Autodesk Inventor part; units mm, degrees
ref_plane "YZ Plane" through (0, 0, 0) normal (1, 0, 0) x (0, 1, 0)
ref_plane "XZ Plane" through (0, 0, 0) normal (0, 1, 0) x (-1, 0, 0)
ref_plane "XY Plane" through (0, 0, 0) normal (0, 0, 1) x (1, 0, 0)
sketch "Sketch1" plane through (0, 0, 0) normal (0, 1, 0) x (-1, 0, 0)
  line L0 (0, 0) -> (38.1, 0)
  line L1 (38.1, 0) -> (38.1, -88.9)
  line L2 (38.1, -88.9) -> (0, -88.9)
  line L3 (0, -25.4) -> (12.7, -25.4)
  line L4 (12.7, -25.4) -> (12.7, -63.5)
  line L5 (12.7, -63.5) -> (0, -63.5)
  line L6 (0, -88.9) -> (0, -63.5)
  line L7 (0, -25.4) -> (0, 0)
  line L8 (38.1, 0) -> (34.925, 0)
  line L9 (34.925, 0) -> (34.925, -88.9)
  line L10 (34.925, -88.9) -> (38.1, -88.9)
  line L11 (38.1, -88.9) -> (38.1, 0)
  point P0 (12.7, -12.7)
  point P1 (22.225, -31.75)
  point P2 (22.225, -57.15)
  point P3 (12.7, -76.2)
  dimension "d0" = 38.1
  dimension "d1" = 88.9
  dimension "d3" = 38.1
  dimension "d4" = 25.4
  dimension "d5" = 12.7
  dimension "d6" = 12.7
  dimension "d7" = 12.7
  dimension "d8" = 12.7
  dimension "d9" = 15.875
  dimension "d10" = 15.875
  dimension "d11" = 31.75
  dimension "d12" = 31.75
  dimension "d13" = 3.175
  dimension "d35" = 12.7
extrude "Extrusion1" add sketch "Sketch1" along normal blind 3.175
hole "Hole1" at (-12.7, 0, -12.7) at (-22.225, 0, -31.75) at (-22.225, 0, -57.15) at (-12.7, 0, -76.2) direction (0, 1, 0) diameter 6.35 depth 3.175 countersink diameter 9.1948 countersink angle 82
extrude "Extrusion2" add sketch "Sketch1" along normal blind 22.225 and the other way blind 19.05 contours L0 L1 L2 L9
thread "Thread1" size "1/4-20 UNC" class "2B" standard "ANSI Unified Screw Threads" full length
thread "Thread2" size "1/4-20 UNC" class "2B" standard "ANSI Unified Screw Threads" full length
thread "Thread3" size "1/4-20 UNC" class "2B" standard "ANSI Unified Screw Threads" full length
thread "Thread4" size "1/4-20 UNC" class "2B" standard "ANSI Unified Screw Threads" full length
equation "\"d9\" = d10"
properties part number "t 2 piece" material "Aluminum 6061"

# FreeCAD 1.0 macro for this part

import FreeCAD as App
import Part
import Sketcher

V = App.Vector
Q = App.Units.Quantity


def add_polygon(sketch, points):
    """Adds a closed chain of lines whose ends are joined by coincident constraints."""
    first, n = sketch.GeometryCount, len(points)
    for a, b in zip(points, points[1:] + points[:1]):
        sketch.addGeometry(Part.LineSegment(App.Vector(*a, 0), App.Vector(*b, 0)), False)
    for i in range(n):
        sketch.addConstraint(Sketcher.Constraint("Coincident", first + i, 2, first + (i + 1) % n, 1))

doc = App.newDocument("Part")
body = doc.addObject("PartDesign::Body", "Body")

# Sketch on XZ plane
sketch1 = doc.addObject("Sketcher::SketchObject", "Sketch")
body.addObject(sketch1)
sketch1.AttachmentSupport = (doc.XZ_Plane, [""])
sketch1.MapMode = "FlatFace"
add_polygon(sketch1, [(0, 0), (0, -25), (-13, -25), (-13, -64), (0, -64), (0, -89), (-38, -89), (-38, 0)])  # lines 0-7
sketch1.addConstraint([
    Sketcher.Constraint("Vertical", 0),
    Sketcher.Constraint("Horizontal", 1),
    Sketcher.Constraint("Vertical", 2),
    Sketcher.Constraint("Horizontal", 3),
    Sketcher.Constraint("Vertical", 4),
    Sketcher.Constraint("Horizontal", 5),
    Sketcher.Constraint("Vertical", 6),
    Sketcher.Constraint("Horizontal", 7),
    Sketcher.Constraint("Coincident", 7, 2, -1, 1),
    Sketcher.Constraint("PointOnObject", 3, 2, -2),
    Sketcher.Constraint("Equal", 7, 2),
    Sketcher.Constraint("Equal", 0, 4),
    Sketcher.Constraint("DistanceY", 0, 2, 0, 1, Q("1 in")),
    Sketcher.Constraint("DistanceX", 1, 2, 1, 1, Q("0.5 in")),
    Sketcher.Constraint("DistanceX", 5, 2, 5, 1, Q("1.5 in")),
])
pad1 = doc.addObject("PartDesign::Pad", "Pad")
body.addObject(pad1)
pad1.Profile = sketch1
pad1.Length = Q("0.125 in")
pad1.Reversed = True

# Sketch on XZ plane
sketch2 = doc.addObject("Sketcher::SketchObject", "Sketch001")
body.addObject(sketch2)
sketch2.AttachmentSupport = (doc.XZ_Plane, [""])
sketch2.MapMode = "FlatFace"
sketch2.addGeometry([
    Part.Circle(V(-12.7, -12.7, 0), V(0, 0, 1), 3.2),
    Part.Circle(V(-22.2, -31.8, 0), V(0, 0, 1), 3.2),
    Part.Circle(V(-22.2, -57.1, 0), V(0, 0, 1), 3.2),
    Part.Circle(V(-12.7, -76.2, 0), V(0, 0, 1), 3.2),
], False)
sketch2.addConstraint([
    Sketcher.Constraint("Equal", 0, 1),
    Sketcher.Constraint("Equal", 1, 2),
    Sketcher.Constraint("Equal", 2, 3),
    Sketcher.Constraint("Vertical", 1, 3, 2, 3),
    Sketcher.Constraint("Vertical", 0, 3, 3, 3),
    Sketcher.Constraint("Diameter", 0, Q("0.25 in")),
    Sketcher.Constraint("DistanceY", 3, 3, -1, 1, Q("3 in")),
    Sketcher.Constraint("DistanceY", 2, 3, 1, 3, Q("1 in")),
    Sketcher.Constraint("DistanceX", 0, 3, -1, 1, Q("0.5 in")),
    Sketcher.Constraint("DistanceY", 0, 3, -1, 1, Q("0.5 in")),
    Sketcher.Constraint("DistanceY", 1, 3, -1, 1, Q("1.25 in")),
    Sketcher.Constraint("DistanceX", 1, 3, -1, 1, Q("0.875 in")),
])
doc.recompute()
hole = doc.addObject("PartDesign::Hole", "Hole")
body.addObject(hole)
hole.Profile = sketch2
hole.ThreadType = "None"
hole.Diameter = Q("0.25 in")
hole.DepthType = "Dimension"
hole.Depth = Q("0.125 in")
hole.DrillPoint = "Flat"
hole.HoleCutType = "Countersink"
hole.HoleCutDiameter = Q("0.362 in")
hole.HoleCutCountersinkAngle = 82

# Sketch on XZ plane
sketch3 = doc.addObject("Sketcher::SketchObject", "Sketch002")
body.addObject(sketch3)
sketch3.AttachmentSupport = (doc.XZ_Plane, [""])
sketch3.MapMode = "FlatFace"
add_polygon(sketch3, [(-38.1, 0), (-34.9, 0), (-34.9, -88.9), (-38.1, -88.9)])  # lines 0-3
sketch3.addConstraint([
    Sketcher.Constraint("Horizontal", 0),
    Sketcher.Constraint("Vertical", 1),
    Sketcher.Constraint("Horizontal", 2),
    Sketcher.Constraint("Vertical", 3),
    Sketcher.Constraint("PointOnObject", 0, 2, -1),
    Sketcher.Constraint("DistanceY", 1, 2, 1, 1, Q("3.5 in")),
    Sketcher.Constraint("DistanceX", 2, 2, -1, 1, Q("1.5 in")),
    Sketcher.Constraint("DistanceX", 0, 1, 0, 2, Q("0.125 in")),
])
pad2 = doc.addObject("PartDesign::Pad", "Pad001")
body.addObject(pad2)
pad2.Profile = sketch3
pad2.Type = "TwoLengths"
pad2.Length = Q("0.875 in")
pad2.Length2 = Q("0.75 in")
pad2.Reversed = True

doc.recompute()
